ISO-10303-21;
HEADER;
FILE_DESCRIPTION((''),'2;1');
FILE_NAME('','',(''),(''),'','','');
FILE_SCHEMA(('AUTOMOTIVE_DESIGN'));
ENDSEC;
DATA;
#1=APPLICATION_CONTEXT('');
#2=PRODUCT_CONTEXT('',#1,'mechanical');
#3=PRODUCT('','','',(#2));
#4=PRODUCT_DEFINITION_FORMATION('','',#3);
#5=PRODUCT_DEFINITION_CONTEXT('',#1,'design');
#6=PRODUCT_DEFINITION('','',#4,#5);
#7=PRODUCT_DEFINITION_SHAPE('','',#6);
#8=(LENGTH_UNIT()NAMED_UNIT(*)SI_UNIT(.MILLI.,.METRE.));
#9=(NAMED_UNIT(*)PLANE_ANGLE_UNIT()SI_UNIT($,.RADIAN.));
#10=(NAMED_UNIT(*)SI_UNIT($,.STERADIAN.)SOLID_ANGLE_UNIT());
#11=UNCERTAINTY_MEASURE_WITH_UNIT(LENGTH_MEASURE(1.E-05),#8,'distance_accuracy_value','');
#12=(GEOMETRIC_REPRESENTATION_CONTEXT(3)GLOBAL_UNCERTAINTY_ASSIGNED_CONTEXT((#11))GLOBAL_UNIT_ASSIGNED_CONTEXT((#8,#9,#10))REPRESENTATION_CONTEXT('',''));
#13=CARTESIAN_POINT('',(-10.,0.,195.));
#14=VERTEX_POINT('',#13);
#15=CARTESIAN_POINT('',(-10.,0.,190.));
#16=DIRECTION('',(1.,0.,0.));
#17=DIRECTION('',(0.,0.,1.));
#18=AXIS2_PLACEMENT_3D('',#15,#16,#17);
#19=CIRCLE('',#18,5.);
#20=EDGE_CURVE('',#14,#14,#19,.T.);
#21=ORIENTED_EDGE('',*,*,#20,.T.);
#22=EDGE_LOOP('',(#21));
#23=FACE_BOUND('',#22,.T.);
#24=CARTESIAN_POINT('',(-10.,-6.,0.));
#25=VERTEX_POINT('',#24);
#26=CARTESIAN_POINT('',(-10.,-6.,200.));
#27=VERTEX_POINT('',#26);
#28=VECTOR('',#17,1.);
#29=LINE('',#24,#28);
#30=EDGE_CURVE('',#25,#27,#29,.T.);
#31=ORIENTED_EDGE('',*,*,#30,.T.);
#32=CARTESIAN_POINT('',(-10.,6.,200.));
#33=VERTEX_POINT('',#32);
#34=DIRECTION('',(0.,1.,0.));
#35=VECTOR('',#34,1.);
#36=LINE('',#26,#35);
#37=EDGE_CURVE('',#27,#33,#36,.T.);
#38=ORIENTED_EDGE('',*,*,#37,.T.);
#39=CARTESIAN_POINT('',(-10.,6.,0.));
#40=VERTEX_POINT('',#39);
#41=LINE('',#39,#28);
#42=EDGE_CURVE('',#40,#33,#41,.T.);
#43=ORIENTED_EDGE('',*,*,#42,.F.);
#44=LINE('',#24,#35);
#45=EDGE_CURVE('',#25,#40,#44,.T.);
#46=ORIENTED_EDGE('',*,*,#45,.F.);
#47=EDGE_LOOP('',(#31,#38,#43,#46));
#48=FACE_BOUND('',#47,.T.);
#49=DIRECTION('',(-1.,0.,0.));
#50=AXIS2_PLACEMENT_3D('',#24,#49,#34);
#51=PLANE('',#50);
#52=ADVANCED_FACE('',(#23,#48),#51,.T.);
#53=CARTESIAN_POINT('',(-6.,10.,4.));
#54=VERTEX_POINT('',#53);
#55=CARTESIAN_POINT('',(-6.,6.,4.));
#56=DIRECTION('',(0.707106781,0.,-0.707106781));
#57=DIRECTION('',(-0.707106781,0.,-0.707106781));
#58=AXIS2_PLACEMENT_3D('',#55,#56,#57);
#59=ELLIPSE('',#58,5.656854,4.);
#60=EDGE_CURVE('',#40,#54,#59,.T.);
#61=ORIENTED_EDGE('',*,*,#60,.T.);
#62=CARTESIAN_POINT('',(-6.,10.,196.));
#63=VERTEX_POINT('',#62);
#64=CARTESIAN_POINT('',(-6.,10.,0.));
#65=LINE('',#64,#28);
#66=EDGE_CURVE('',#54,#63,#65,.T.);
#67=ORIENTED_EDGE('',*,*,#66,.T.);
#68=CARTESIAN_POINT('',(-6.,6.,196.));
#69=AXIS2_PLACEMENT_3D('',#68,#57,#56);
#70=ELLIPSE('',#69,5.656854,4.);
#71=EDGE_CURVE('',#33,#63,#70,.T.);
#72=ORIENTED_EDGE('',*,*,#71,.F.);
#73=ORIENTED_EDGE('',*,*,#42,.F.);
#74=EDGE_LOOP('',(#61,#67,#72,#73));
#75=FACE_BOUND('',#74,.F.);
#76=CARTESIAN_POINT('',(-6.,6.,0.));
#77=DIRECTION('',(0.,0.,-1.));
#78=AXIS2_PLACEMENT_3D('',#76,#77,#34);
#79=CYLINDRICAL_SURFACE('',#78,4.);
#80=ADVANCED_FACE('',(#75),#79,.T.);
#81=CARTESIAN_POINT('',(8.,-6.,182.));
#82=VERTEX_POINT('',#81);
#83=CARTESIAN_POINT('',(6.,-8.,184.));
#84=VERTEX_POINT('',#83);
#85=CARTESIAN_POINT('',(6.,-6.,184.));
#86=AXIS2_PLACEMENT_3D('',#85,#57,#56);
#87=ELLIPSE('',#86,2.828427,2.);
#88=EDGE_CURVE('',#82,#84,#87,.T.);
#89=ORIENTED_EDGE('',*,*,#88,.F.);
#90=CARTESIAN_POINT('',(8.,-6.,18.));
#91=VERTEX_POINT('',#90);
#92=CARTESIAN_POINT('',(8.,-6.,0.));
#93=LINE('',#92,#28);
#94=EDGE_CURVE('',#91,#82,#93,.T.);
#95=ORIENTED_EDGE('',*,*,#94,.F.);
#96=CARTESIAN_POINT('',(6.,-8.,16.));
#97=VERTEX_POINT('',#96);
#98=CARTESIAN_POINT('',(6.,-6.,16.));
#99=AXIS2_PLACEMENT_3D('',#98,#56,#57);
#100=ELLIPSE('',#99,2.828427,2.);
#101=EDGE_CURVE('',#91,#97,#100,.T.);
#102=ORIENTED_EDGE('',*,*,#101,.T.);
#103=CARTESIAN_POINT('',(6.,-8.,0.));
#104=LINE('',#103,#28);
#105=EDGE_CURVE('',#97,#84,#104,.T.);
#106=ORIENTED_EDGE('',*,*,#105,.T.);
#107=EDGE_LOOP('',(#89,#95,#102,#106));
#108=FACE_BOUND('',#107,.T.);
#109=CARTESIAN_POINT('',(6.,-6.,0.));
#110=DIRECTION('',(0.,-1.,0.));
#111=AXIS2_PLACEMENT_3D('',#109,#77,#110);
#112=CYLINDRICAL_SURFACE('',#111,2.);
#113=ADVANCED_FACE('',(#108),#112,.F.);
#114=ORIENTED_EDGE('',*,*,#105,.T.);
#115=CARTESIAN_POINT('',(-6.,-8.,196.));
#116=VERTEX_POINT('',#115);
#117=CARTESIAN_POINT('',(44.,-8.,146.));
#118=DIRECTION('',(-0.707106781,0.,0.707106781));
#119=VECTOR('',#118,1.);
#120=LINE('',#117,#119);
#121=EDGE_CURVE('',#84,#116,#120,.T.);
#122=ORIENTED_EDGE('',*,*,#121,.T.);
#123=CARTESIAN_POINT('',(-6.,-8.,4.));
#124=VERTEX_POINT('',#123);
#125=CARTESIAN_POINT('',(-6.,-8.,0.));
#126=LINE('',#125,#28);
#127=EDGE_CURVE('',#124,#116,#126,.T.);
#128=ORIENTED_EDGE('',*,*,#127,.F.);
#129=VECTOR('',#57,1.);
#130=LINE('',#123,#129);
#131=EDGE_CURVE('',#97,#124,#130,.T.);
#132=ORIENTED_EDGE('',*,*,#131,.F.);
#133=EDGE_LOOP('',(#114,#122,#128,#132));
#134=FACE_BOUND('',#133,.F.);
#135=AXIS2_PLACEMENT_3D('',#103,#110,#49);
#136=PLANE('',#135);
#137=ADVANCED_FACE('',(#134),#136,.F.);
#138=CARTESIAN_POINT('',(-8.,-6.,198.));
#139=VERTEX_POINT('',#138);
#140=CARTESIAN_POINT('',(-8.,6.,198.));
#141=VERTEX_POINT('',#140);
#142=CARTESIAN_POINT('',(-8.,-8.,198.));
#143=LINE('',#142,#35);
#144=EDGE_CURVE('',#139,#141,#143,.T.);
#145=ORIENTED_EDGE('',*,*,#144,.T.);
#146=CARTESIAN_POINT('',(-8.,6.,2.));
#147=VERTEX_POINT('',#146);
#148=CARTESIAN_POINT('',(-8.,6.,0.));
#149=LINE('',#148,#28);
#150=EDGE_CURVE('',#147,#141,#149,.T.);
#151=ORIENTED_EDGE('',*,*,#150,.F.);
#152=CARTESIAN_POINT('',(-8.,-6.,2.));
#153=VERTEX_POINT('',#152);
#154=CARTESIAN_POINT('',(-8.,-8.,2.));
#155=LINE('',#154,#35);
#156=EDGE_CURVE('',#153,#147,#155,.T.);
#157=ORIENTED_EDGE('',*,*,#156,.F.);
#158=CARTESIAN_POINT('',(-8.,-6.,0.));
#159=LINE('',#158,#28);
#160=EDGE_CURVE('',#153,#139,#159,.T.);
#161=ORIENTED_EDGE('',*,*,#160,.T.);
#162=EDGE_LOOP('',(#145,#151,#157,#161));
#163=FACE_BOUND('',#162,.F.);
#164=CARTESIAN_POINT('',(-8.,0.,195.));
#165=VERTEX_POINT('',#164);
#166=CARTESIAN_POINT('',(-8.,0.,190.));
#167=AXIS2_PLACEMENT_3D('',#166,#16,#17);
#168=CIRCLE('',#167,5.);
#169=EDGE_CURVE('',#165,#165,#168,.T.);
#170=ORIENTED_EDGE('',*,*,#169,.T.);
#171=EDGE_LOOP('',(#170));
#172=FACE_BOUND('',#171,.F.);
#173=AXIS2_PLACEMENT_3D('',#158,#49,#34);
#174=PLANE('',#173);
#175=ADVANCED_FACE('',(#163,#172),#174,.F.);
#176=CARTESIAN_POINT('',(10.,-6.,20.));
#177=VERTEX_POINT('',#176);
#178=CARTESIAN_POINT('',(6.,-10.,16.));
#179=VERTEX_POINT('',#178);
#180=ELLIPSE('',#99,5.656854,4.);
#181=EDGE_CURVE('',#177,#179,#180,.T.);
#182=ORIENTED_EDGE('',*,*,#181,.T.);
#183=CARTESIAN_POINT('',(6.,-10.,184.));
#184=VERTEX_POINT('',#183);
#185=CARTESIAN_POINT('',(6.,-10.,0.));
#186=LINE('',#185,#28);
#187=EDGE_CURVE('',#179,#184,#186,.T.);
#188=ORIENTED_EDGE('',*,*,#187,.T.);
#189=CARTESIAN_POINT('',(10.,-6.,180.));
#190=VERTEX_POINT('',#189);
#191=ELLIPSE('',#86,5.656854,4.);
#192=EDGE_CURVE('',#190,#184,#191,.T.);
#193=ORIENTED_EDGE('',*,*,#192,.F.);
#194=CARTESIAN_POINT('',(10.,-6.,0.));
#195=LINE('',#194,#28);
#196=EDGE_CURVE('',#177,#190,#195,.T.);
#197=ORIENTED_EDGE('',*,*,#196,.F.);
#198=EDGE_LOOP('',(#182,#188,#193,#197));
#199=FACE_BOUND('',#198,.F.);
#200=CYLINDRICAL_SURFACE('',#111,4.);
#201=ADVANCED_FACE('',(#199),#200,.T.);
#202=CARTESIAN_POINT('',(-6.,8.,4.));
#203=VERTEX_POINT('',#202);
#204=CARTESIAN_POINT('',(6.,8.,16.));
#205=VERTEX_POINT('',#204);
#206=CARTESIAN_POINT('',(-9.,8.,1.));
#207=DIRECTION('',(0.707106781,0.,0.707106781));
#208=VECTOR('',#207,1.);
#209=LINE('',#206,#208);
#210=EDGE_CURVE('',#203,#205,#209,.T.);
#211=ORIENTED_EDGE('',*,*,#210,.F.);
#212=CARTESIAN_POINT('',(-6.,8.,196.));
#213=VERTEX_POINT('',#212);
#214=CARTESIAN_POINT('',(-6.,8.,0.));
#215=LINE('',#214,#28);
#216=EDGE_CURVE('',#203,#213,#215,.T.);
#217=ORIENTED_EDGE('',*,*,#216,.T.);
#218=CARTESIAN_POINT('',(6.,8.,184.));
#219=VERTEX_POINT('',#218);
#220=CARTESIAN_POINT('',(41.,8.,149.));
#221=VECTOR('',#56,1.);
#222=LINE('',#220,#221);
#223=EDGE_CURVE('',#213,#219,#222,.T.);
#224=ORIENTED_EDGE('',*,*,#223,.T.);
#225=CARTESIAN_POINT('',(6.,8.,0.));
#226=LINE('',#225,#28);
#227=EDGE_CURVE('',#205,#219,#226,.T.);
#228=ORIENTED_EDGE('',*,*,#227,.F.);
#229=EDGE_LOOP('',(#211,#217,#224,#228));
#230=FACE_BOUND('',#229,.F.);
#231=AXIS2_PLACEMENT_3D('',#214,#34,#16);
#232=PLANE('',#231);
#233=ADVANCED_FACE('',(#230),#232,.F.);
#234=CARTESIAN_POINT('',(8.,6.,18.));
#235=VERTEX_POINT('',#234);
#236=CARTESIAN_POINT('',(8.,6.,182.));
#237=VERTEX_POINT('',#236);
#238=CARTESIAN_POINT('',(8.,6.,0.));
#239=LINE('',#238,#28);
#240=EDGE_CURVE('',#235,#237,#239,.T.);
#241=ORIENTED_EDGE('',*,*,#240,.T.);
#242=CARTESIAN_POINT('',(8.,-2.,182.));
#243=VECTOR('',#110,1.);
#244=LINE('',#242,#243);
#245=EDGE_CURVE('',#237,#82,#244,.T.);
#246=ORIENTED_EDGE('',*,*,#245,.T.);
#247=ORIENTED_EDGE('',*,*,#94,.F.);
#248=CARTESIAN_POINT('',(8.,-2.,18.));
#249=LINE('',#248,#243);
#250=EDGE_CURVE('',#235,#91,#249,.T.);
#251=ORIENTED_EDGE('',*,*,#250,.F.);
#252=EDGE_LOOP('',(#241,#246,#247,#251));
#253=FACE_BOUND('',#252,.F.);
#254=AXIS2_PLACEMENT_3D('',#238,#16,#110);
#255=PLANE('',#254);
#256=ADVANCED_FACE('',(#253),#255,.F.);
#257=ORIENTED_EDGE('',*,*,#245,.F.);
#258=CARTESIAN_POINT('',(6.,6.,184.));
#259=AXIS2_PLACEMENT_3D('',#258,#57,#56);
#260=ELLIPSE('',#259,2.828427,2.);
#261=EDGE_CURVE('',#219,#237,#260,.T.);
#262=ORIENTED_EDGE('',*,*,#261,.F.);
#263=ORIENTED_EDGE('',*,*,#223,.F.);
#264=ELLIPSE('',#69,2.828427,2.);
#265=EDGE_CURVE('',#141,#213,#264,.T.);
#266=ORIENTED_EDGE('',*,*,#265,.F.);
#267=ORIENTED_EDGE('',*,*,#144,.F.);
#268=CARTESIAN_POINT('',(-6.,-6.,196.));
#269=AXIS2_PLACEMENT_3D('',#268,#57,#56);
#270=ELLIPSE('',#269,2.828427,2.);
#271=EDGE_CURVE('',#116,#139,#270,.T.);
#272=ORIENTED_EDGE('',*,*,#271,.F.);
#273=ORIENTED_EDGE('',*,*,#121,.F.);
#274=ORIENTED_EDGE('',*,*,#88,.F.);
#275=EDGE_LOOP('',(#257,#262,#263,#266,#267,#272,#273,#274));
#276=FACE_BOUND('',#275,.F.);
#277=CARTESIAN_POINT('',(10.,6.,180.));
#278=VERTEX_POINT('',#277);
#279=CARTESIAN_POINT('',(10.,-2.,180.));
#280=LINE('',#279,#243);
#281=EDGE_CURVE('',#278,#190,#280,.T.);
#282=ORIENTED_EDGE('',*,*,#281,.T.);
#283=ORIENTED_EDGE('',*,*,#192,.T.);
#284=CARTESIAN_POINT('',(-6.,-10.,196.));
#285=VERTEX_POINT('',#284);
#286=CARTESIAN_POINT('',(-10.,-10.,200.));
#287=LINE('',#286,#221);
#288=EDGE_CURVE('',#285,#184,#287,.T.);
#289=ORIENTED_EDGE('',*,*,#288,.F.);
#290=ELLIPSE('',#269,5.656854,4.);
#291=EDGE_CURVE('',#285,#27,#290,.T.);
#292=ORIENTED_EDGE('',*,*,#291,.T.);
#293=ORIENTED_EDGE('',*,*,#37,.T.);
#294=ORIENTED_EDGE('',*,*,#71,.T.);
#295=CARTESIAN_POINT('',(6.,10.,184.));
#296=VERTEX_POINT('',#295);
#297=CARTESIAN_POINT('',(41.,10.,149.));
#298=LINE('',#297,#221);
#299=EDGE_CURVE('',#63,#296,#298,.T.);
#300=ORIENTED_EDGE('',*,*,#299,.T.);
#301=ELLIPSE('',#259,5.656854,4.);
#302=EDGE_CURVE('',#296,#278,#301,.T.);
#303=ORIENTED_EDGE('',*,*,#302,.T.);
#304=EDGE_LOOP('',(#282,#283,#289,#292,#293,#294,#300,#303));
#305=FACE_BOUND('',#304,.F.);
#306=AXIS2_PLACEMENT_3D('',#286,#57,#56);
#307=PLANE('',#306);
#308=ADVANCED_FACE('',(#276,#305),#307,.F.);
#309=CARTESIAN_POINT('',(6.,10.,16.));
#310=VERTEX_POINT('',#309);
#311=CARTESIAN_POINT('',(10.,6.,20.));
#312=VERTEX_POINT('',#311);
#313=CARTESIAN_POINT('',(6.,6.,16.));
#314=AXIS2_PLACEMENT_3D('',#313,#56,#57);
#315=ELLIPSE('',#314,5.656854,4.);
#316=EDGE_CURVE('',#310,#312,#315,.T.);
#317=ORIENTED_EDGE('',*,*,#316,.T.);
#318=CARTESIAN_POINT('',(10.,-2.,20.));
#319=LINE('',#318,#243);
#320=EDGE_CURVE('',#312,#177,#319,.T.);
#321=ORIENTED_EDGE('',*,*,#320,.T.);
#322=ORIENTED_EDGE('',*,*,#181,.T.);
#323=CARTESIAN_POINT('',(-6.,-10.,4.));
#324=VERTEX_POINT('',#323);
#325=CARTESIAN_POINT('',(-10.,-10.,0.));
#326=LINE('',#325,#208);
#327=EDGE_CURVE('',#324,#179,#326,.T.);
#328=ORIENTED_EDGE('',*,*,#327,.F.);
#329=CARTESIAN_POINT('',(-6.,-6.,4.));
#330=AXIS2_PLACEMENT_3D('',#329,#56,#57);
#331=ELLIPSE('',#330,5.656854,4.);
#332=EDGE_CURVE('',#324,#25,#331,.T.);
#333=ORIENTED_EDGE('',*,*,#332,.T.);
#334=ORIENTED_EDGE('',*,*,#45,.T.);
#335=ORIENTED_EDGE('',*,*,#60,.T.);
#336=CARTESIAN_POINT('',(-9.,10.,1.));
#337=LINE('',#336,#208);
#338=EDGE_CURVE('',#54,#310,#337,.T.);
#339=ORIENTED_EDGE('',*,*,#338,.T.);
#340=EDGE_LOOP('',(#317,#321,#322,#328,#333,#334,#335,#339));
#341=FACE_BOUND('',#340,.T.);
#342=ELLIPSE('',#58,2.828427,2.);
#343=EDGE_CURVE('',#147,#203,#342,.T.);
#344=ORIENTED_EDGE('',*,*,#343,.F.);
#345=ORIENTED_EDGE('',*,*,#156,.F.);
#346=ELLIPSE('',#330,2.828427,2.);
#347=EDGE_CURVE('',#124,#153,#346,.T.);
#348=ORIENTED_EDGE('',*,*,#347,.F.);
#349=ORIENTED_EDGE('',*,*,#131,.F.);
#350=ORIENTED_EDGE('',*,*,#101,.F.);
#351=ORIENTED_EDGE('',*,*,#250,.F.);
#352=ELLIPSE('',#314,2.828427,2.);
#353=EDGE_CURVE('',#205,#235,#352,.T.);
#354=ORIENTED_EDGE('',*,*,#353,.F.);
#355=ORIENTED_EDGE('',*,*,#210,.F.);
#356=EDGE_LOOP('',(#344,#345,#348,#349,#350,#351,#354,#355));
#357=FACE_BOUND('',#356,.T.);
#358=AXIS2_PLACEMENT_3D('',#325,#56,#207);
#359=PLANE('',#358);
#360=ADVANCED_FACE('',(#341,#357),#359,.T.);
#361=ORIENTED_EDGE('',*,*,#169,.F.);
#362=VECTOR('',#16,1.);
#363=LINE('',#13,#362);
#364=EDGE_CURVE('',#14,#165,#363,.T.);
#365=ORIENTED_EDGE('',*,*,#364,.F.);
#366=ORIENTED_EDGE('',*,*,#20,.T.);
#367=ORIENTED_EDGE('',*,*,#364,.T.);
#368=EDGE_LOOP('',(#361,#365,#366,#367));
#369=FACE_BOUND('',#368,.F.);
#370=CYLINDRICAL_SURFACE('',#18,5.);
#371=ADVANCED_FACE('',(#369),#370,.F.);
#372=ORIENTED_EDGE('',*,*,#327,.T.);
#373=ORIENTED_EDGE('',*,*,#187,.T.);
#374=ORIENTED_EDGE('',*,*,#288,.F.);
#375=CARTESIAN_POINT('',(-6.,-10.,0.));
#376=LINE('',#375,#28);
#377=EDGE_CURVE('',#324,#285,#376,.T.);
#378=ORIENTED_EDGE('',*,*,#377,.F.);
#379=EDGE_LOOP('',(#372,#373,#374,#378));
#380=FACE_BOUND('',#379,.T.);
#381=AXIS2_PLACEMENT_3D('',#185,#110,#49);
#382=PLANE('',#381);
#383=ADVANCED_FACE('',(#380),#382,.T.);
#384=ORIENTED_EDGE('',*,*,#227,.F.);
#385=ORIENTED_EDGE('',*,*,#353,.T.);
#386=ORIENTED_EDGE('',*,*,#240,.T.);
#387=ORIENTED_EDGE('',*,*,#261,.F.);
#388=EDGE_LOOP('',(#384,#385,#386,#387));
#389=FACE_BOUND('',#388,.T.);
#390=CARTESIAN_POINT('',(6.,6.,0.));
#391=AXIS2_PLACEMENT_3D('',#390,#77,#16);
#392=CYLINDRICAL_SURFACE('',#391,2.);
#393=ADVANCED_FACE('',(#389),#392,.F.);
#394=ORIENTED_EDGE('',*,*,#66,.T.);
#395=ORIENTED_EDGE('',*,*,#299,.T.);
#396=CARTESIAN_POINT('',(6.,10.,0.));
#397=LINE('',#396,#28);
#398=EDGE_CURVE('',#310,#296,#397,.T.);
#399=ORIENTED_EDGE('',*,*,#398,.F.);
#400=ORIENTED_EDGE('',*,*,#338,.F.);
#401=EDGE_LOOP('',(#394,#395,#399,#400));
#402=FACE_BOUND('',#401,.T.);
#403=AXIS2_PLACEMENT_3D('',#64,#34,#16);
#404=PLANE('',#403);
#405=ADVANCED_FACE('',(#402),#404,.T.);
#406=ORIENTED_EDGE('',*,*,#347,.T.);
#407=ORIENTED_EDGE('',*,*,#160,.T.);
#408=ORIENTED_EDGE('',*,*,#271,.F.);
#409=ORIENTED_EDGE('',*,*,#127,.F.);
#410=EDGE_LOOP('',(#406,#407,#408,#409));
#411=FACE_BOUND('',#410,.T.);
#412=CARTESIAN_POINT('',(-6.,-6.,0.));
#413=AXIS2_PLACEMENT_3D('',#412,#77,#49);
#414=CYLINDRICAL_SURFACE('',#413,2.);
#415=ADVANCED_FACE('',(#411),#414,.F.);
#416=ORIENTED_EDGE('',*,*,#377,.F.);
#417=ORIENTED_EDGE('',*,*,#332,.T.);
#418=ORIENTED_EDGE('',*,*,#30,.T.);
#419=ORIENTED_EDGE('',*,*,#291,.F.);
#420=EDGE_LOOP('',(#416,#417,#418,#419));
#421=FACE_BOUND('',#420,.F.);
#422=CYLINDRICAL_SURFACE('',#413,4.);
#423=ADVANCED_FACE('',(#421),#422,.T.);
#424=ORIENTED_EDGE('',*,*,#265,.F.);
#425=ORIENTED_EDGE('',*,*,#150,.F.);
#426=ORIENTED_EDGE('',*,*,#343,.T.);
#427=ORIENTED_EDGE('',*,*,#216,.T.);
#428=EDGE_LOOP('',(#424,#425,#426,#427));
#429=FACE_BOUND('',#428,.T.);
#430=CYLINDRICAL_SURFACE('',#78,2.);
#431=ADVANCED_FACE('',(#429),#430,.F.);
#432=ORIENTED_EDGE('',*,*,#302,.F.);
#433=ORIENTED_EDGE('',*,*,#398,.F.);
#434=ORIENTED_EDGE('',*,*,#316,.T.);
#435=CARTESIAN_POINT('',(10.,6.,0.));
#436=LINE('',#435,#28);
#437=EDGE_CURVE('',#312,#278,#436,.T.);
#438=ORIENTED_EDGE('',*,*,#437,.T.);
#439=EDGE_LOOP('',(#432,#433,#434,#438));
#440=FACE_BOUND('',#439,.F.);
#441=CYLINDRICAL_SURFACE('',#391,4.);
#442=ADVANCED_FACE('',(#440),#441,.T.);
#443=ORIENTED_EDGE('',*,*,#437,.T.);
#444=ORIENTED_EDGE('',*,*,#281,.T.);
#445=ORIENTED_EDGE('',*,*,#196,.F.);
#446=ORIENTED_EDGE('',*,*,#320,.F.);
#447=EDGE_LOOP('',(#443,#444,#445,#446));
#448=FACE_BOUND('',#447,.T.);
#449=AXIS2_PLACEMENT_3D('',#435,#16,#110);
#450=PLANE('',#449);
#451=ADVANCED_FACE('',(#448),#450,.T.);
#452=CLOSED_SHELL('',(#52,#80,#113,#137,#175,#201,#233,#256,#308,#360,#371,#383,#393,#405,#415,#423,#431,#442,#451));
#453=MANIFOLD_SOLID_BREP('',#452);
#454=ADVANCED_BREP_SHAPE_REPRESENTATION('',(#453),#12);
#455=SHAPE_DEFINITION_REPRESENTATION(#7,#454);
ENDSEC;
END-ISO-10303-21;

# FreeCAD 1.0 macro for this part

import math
import FreeCAD as App
import Part
import Sketcher

V = App.Vector


def add_polygon(sketch, points):
    """Adds a closed chain of lines whose ends are joined by coincident constraints."""
    first, n = sketch.GeometryCount, len(points)
    for a, b in zip(points, points[1:] + points[:1]):
        sketch.addGeometry(Part.LineSegment(App.Vector(*a, 0), App.Vector(*b, 0)), False)
    for i in range(n):
        sketch.addConstraint(Sketcher.Constraint("Coincident", first + i, 2, first + (i + 1) % n, 1))

doc = App.newDocument("Part")
body = doc.addObject("PartDesign::Body", "Body")

sketch1 = body.newObject("Sketcher::SketchObject", "Sketch")
sketch1.AttachmentSupport = (doc.getObject("XY_Plane"), [""])
sketch1.MapMode = "FlatFace"
sketch1.addGeometry([
    Part.LineSegment(V(-10, 6, 0), V(-10, -6, 0)),
    Part.ArcOfCircle(Part.Circle(V(-6, -6, 0), V(0, 0, 1), 4), math.radians(180), math.radians(270)),
    Part.LineSegment(V(-6, -10, 0), V(6, -10, 0)),
    Part.ArcOfCircle(Part.Circle(V(6, -6, 0), V(0, 0, 1), 4), math.radians(-90), math.radians(0)),
    Part.LineSegment(V(10, -6, 0), V(10, 6, 0)),
    Part.ArcOfCircle(Part.Circle(V(6, 6, 0), V(0, 0, 1), 4), math.radians(0), math.radians(90)),
    Part.LineSegment(V(6, 10, 0), V(-6, 10, 0)),
    Part.ArcOfCircle(Part.Circle(V(-6, 6, 0), V(0, 0, 1), 4), math.radians(90), math.radians(180)),
    Part.ArcOfCircle(Part.Circle(V(-6, 6, 0), V(0, 0, 1), 2), math.radians(90), math.radians(180)),
    Part.LineSegment(V(-6, 8, 0), V(6, 8, 0)),
    Part.ArcOfCircle(Part.Circle(V(6, 6, 0), V(0, 0, 1), 2), math.radians(0), math.radians(90)),
    Part.LineSegment(V(8, 6, 0), V(8, -6, 0)),
    Part.ArcOfCircle(Part.Circle(V(6, -6, 0), V(0, 0, 1), 2), math.radians(-90), math.radians(0)),
    Part.LineSegment(V(6, -8, 0), V(-6, -8, 0)),
    Part.ArcOfCircle(Part.Circle(V(-6, -6, 0), V(0, 0, 1), 2), math.radians(180), math.radians(270)),
    Part.LineSegment(V(-8, -6, 0), V(-8, 6, 0)),
], False)
sketch1.addConstraint([
    Sketcher.Constraint("Tangent", 0, 2, 1, 1),
    Sketcher.Constraint("Tangent", 1, 2, 2, 1),
    Sketcher.Constraint("Tangent", 2, 2, 3, 1),
    Sketcher.Constraint("Tangent", 3, 2, 4, 1),
    Sketcher.Constraint("Tangent", 4, 2, 5, 1),
    Sketcher.Constraint("Tangent", 5, 2, 6, 1),
    Sketcher.Constraint("Tangent", 6, 2, 7, 1),
    Sketcher.Constraint("Tangent", 7, 2, 0, 1),
    Sketcher.Constraint("Tangent", 8, 1, 9, 1),
    Sketcher.Constraint("Tangent", 9, 2, 10, 2),
    Sketcher.Constraint("Tangent", 10, 1, 11, 1),
    Sketcher.Constraint("Tangent", 11, 2, 12, 2),
    Sketcher.Constraint("Tangent", 12, 1, 13, 1),
    Sketcher.Constraint("Tangent", 13, 2, 14, 2),
    Sketcher.Constraint("Tangent", 14, 1, 15, 1),
    Sketcher.Constraint("Tangent", 15, 2, 8, 2),
    Sketcher.Constraint("Vertical", 0),
    Sketcher.Constraint("Horizontal", 2),
    Sketcher.Constraint("Vertical", 4),
    Sketcher.Constraint("Horizontal", 6),
    Sketcher.Constraint("Horizontal", 9),
    Sketcher.Constraint("Vertical", 11),
    Sketcher.Constraint("Horizontal", 13),
    Sketcher.Constraint("Vertical", 15),
    Sketcher.Constraint("Coincident", 8, 3, 7, 3),
    Sketcher.Constraint("Coincident", 10, 3, 5, 3),
    Sketcher.Constraint("Coincident", 12, 3, 3, 3),
    Sketcher.Constraint("Equal", 1, 3),
    Sketcher.Constraint("Equal", 3, 5),
    Sketcher.Constraint("Equal", 5, 7),
    Sketcher.Constraint("Equal", 12, 14),
    Sketcher.Constraint("Symmetric", 1, 3, 5, 3, -1, 1),
    Sketcher.Constraint("Equal", 13, 0),
    Sketcher.Constraint("Radius", 1, 4.0),
    Sketcher.Constraint("Radius", 8, 2.0),
    Sketcher.Constraint("DistanceX", 0, 2, -1, 1, 10.0),
])
pad1 = body.newObject("PartDesign::Pad", "Pad")
pad1.Profile = sketch1
pad1.Length = 200

sketch2 = body.newObject("Sketcher::SketchObject", "Sketch001")
sketch2.AttachmentSupport = (doc.getObject("XZ_Plane"), [""])
sketch2.MapMode = "FlatFace"
sketch2.AttachmentOffset = App.Placement(V(0, 0, 10), App.Rotation())
add_polygon(sketch2, [(21.2685, 31.2685), (-10, 0), (21.2685, 0)])
add_polygon(sketch2, [(25.4981, 200), (-10, 200), (25.4981, 164.5019)])
sketch2.addConstraint([
    Sketcher.Constraint("Horizontal", 1),
    Sketcher.Constraint("Vertical", 2),
    Sketcher.Constraint("Horizontal", 3),
    Sketcher.Constraint("Vertical", 5),
    Sketcher.Constraint("PointOnObject", 0, 2, -1),
    Sketcher.Constraint("Perpendicular", 0, 4),
    Sketcher.Constraint("Vertical", 0, 2, 3, 2),
    Sketcher.Constraint("Equal", 1, 2),
    Sketcher.Constraint("DistanceX", 0, 2, -1, 1, 10.0),
    Sketcher.Constraint("DistanceY", -1, 1, 3, 2, 200.0),
    Sketcher.Constraint("DistanceX", 3, 2, 3, 1, 35.498),
    Sketcher.Constraint("DistanceX", 1, 1, 1, 2, 31.2685),
])
pocket1 = body.newObject("PartDesign::Pocket", "Pocket")
pocket1.Profile = sketch2
pocket1.Length = 20

sketch3 = body.newObject("Sketcher::SketchObject", "Sketch002")
sketch3.AttachmentSupport = (doc.getObject("YZ_Plane"), [""])
sketch3.MapMode = "FlatFace"
sketch3.AttachmentOffset = App.Placement(V(0, 0, -10), App.Rotation())
sketch3.addGeometry(Part.Circle(V(0, 190, 0), V(0, 0, 1), 5), False)
sketch3.addConstraint([
    Sketcher.Constraint("PointOnObject", 0, 3, -2),
    Sketcher.Constraint("Diameter", 0, 10.0),
    Sketcher.Constraint("DistanceY", -1, 1, 0, 3, 190.0),
])
doc.recompute()
hole = body.newObject("PartDesign::Hole", "Hole")
hole.Profile = sketch3
hole.ThreadType = "None"
hole.Diameter = 10
hole.DepthType = "ThroughAll"
hole.Reversed = True

doc.recompute()
